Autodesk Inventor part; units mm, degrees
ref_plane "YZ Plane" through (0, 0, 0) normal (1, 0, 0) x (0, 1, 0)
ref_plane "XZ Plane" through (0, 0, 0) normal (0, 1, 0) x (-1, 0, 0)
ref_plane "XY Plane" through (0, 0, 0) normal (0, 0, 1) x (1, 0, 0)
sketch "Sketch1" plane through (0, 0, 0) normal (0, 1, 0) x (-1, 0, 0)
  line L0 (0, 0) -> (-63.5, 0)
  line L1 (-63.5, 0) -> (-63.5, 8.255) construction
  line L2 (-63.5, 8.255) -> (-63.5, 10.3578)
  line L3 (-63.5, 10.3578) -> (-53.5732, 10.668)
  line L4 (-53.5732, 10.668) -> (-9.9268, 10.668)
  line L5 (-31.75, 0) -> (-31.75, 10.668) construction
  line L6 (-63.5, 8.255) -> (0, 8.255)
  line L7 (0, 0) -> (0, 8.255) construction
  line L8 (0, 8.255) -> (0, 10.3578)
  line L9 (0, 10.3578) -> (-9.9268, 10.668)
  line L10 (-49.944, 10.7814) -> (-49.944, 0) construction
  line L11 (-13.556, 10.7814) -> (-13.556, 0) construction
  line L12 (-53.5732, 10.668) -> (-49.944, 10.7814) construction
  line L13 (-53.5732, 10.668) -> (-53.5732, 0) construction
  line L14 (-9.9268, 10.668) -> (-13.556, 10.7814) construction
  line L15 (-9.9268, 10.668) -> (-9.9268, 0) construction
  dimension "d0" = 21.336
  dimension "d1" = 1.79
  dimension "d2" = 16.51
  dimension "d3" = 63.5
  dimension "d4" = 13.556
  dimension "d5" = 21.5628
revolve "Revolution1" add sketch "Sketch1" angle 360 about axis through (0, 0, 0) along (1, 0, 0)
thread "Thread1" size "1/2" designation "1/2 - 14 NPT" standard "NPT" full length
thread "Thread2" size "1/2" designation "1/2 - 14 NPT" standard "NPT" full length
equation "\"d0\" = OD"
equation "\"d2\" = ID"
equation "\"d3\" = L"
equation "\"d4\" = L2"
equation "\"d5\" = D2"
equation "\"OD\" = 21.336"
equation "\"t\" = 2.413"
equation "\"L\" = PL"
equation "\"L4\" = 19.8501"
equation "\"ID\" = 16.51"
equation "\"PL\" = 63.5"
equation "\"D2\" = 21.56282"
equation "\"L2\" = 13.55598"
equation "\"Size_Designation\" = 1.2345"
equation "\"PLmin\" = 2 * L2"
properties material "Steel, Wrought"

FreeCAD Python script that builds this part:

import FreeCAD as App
import Part
import Sketcher
Q = App.Units.Quantity

doc = App.newDocument("Part")
body = doc.addObject("PartDesign::Body", "Body")

sketch1 = doc.addObject("Sketcher::SketchObject", "Sketch")
body.addObject(sketch1)
sketch1.AttachmentSupport = (doc.XZ_Plane, [""])
sketch1.MapMode = "FlatFace"
sketch1.addGeometry([
    Part.LineSegment(App.Vector(63.5, 10.4, 0), App.Vector(63.5, 8.3, 0)),
    Part.LineSegment(App.Vector(63.5, 8.3, 0), App.Vector(0, 8.3, 0)),
    Part.LineSegment(App.Vector(0, 8.3, 0), App.Vector(0, 10.4, 0)),
    Part.LineSegment(App.Vector(0, 10.4, 0), App.Vector(9.9, 10.7, 0)),
    Part.LineSegment(App.Vector(9.9, 10.7, 0), App.Vector(53.6, 10.7, 0)),
    Part.LineSegment(App.Vector(53.6, 10.7, 0), App.Vector(63.5, 10.4, 0)),
], False)
sketch1.addConstraint([
    Sketcher.Constraint("Coincident", 0, 2, 1, 1),
    Sketcher.Constraint("Coincident", 1, 2, 2, 1),
    Sketcher.Constraint("Coincident", 2, 2, 3, 1),
    Sketcher.Constraint("Coincident", 3, 2, 4, 1),
    Sketcher.Constraint("Coincident", 4, 2, 5, 1),
    Sketcher.Constraint("Coincident", 5, 2, 0, 1),
    Sketcher.Constraint("Vertical", 0),
    Sketcher.Constraint("Horizontal", 1),
    Sketcher.Constraint("Vertical", 2),
    Sketcher.Constraint("Horizontal", 4),
    Sketcher.Constraint("PointOnObject", 1, 2, -2),
    Sketcher.Constraint("Horizontal", 2, 2, 5, 2),
    Sketcher.Constraint("Equal", 3, 5),
    Sketcher.Constraint("DistanceX", 1, 2, 1, 1, Q("2.5 in")),
    Sketcher.Constraint("Angle", 3, Q("1.7898 deg")),
    Sketcher.Constraint("DistanceY", -1, 1, 3, 2, Q("0.42 in")),
    Sketcher.Constraint("Distance", 3, Q("0.391 in")),
    Sketcher.Constraint("DistanceY", -1, 1, 0, 2, Q("0.325 in")),
])
revolution = doc.addObject("PartDesign::Revolution", "Revolution")
body.addObject(revolution)
revolution.Profile = sketch1
revolution.ReferenceAxis = (sketch1, ["H_Axis"])
revolution.Angle = 360

doc.recompute()
